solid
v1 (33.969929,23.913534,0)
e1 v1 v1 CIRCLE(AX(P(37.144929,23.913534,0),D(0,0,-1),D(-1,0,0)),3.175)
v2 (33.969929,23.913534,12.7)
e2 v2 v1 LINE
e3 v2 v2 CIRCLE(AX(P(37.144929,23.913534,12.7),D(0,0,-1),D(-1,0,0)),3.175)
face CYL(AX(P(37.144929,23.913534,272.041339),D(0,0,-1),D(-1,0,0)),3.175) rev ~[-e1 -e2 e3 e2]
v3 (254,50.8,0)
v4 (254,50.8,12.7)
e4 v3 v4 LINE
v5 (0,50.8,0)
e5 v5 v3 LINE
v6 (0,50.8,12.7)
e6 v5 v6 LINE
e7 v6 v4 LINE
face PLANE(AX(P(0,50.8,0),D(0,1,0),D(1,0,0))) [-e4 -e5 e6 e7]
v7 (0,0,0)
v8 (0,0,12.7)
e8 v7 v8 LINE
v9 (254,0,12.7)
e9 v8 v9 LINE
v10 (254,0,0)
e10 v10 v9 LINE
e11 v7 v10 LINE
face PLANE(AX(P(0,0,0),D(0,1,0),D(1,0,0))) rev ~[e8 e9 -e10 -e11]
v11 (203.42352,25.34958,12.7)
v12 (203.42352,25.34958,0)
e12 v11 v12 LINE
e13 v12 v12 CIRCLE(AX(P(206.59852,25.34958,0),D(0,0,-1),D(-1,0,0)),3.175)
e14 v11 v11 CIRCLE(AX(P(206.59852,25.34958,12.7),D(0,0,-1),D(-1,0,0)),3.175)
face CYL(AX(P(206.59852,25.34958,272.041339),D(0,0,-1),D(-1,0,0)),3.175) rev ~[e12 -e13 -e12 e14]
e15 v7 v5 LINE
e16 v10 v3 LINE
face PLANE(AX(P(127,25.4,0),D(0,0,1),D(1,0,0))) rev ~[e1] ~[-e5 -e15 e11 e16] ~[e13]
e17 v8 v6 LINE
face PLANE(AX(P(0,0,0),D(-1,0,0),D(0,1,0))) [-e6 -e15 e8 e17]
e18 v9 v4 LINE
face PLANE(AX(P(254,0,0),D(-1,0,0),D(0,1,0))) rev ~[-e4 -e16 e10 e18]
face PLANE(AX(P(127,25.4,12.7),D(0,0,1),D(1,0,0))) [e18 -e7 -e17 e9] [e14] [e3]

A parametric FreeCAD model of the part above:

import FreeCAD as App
import Part
import Sketcher
from FreeCAD import Vector
Q = App.Units.Quantity


def add_polygon(sketch, points):
    """Adds a closed chain of lines whose ends are joined by coincident constraints."""
    first, n = sketch.GeometryCount, len(points)
    for a, b in zip(points, points[1:] + points[:1]):
        sketch.addGeometry(Part.LineSegment(App.Vector(*a, 0), App.Vector(*b, 0)), False)
    for i in range(n):
        sketch.addConstraint(Sketcher.Constraint("Coincident", first + i, 2, first + (i + 1) % n, 1))

doc = App.newDocument("Part")
body = doc.addObject("PartDesign::Body", "Body")

sketch1 = body.newObject("Sketcher::SketchObject", "Sketch")
sketch1.AttachmentSupport = (doc.getObject("XY_Plane"), [""])
sketch1.MapMode = "FlatFace"
add_polygon(sketch1, [(0, 51), (0, 0), (254, 0), (254, 51)])
sketch1.addConstraint(Sketcher.Constraint("Vertical", 0))
sketch1.addConstraint(Sketcher.Constraint("Horizontal", 1))
sketch1.addConstraint(Sketcher.Constraint("Vertical", 2))
sketch1.addConstraint(Sketcher.Constraint("Horizontal", 3))
sketch1.addConstraint(Sketcher.Constraint("Coincident", 0, 2, -1, 1))
sketch1.addConstraint(Sketcher.Constraint("DistanceX", 1, 1, 1, 2, Q("10 in")))
sketch1.addConstraint(Sketcher.Constraint("DistanceY", 0, 2, 0, 1, Q("2 in")))
pad1 = body.newObject("PartDesign::Pad", "Pad")
pad1.Profile = sketch1
pad1.Length = Q("0.5 in")

sketch2 = body.newObject("Sketcher::SketchObject", "Sketch001")
sketch2.AttachmentSupport = (doc.getObject("XY_Plane"), [""])
sketch2.MapMode = "FlatFace"
sketch2.AttachmentOffset = App.Placement(Vector(0, 0, 0.5 * 25.4), App.Rotation())
sketch2.addGeometry(Part.Circle(Vector(37.1, 23.9, 0), Vector(0, 0, 1), 3.2), False)
sketch2.addGeometry(Part.Circle(Vector(206.6, 25.3, 0), Vector(0, 0, 1), 3.2), False)
sketch2.addConstraint(Sketcher.Constraint("Equal", 0, 1))
sketch2.addConstraint(Sketcher.Constraint("Diameter", 0, Q("0.25 in")))
sketch2.addConstraint(Sketcher.Constraint("DistanceX", -1, 1, 1, 3, Q("8.1338 in")))
sketch2.addConstraint(Sketcher.Constraint("DistanceX", -1, 1, 0, 3, 37.144929))
sketch2.addConstraint(Sketcher.Constraint("DistanceY", -1, 1, 1, 3, 25.34958))
sketch2.addConstraint(Sketcher.Constraint("DistanceY", -1, 1, 0, 3, 23.913534))
doc.recompute()
hole = body.newObject("PartDesign::Hole", "Hole")
hole.Profile = sketch2
hole.ThreadType = "None"
hole.Diameter = Q("0.25 in")
hole.DepthType = "ThroughAll"

doc.recompute()
